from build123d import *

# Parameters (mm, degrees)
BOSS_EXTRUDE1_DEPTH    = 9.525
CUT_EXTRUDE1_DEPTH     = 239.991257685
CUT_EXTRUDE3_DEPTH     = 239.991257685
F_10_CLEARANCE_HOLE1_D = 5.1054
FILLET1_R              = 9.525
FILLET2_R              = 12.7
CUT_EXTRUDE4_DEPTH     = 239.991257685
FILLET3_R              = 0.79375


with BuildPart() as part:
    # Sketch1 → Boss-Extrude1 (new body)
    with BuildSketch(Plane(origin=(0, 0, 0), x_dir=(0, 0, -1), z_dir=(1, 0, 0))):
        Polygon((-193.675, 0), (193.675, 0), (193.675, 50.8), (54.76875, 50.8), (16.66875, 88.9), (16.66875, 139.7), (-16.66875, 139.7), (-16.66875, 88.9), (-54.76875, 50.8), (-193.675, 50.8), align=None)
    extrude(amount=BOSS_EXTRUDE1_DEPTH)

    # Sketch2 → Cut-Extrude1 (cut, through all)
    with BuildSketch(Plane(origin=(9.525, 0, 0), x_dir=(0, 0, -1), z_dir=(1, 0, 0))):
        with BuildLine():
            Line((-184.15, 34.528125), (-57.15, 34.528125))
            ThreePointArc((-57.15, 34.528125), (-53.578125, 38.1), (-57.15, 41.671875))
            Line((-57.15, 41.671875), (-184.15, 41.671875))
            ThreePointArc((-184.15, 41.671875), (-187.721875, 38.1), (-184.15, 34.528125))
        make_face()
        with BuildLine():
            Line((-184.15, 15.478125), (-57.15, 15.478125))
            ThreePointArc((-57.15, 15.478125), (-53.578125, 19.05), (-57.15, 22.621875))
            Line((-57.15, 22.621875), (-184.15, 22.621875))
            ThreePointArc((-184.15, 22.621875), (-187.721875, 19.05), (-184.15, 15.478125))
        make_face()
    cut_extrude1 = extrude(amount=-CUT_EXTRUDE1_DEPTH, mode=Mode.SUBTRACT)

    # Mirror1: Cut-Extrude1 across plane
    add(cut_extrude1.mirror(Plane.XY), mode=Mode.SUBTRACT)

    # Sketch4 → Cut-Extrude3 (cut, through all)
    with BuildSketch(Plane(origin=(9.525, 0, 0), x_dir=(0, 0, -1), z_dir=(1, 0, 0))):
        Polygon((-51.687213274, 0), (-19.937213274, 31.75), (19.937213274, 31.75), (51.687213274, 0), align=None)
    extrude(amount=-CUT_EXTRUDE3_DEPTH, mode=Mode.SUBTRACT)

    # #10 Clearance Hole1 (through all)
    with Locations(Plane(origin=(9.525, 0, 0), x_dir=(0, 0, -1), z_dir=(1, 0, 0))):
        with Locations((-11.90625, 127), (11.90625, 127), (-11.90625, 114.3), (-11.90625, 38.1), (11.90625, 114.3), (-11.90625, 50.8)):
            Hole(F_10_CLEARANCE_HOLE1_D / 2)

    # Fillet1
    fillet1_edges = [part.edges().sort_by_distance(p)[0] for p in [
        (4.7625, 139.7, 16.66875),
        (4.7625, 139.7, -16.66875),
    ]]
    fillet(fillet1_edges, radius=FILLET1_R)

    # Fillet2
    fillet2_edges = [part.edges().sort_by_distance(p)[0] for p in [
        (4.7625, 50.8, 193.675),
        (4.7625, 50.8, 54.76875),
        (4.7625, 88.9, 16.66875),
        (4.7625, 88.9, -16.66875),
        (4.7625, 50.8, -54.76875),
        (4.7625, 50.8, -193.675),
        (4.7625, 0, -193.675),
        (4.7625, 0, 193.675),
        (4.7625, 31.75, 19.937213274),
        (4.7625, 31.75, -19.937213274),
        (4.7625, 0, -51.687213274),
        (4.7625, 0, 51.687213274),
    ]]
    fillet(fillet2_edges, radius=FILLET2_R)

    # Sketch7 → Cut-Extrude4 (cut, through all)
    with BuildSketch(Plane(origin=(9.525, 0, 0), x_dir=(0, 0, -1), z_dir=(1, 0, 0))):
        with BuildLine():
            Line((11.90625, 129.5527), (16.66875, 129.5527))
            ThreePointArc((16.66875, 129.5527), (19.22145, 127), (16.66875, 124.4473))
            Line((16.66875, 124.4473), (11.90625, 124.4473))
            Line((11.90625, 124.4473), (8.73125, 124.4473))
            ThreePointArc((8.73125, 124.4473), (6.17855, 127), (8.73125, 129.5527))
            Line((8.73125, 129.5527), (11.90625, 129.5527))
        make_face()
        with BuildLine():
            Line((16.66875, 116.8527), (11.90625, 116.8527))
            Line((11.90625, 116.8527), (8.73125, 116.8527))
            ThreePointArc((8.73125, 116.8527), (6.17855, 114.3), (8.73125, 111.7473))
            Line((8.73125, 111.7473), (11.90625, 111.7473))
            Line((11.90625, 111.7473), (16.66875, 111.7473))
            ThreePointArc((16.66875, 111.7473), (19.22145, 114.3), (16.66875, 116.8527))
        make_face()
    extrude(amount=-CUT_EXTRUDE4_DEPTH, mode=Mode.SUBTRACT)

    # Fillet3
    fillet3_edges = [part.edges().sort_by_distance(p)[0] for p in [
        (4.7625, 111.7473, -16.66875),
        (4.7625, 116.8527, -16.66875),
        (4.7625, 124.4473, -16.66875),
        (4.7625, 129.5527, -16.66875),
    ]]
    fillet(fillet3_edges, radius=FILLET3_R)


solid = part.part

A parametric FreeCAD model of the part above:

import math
import FreeCAD as App
import Part
import Sketcher
from FreeCAD import Vector
Q = App.Units.Quantity


def edges_at(feature, points):
    """Names of the edges that pass closest to the given points."""
    edges = feature.Shape.Edges
    near = lambda p: min(range(len(edges)), key=lambda i: edges[i].distToShape(Part.Vertex(*p))[0])
    return sorted({f"Edge{near(p) + 1}" for p in points})


def add_polygon(sketch, points):
    """Adds a closed chain of lines whose ends are joined by coincident constraints."""
    first, n = sketch.GeometryCount, len(points)
    for a, b in zip(points, points[1:] + points[:1]):
        sketch.addGeometry(Part.LineSegment(App.Vector(*a, 0), App.Vector(*b, 0)), False)
    for i in range(n):
        sketch.addConstraint(Sketcher.Constraint("Coincident", first + i, 2, first + (i + 1) % n, 1))

doc = App.newDocument("Part")
params = doc.addObject("Spreadsheet::Sheet", "Params")
for row, (alias, value) in enumerate([
    ("sketch1_width", "2 in"),
    ("sketch1_height", "15.25 in"),
    ("sketch1_height2", "5.46875 in"),
    ("pad1_length", "0.375 in"),
    ("sketch2_height", "5 in"),
    ("sketch2_radius", "0.140625 in"),
    ("sketch4_diameter", "0.201 in"),
    ("hole_diameter", "0.201 in"),
    ("fillet_radius", "0.375 in"),
    ("fillet2_radius", "0.5 in"),
    ("sketch5_height", "0.3125 in"),
    ("fillet3_radius", "0.03125 in"),
], start=1):
    params.set(f"A{row}", alias)
    params.set(f"B{row}", "=" + value)
    params.setAlias(f"B{row}", alias)

body = doc.addObject("PartDesign::Body", "Body")

# Sketch on YZ plane
sketch1 = doc.addObject("Sketcher::SketchObject", "Sketch")
body.addObject(sketch1)
sketch1.AttachmentSupport = (doc.YZ_Plane, [""])
sketch1.MapMode = "FlatFace"
add_polygon(sketch1, [(0, 194), (0, -194), (51, -194), (51, -55), (89, -17), (140, -17), (140, 17), (89, 17), (51, 55), (51, 194)])  # lines 0-9
sketch1.addConstraint([
    Sketcher.Constraint("Vertical", 0),
    Sketcher.Constraint("Horizontal", 1),
    Sketcher.Constraint("Vertical", 2),
    Sketcher.Constraint("Horizontal", 4),
    Sketcher.Constraint("Vertical", 5),
    Sketcher.Constraint("Horizontal", 6),
    Sketcher.Constraint("Vertical", 8),
    Sketcher.Constraint("Horizontal", 9),
    Sketcher.Constraint("Symmetric", 0, 2, 9, 2, -1, 1),
    Sketcher.Constraint("Symmetric", 3, 2, 6, 2, -1),
    Sketcher.Constraint("Symmetric", 2, 2, 7, 2, -1),
    Sketcher.Constraint("Perpendicular", 3, 7),
    Sketcher.Constraint("Equal", 1, 4),
    Sketcher.Constraint("DistanceX", 1, 1, 1, 2, Q("2 in")),
    Sketcher.Constraint("DistanceY", 0, 2, 0, 1, Q("15.25 in")),
    Sketcher.Constraint("DistanceX", -1, 1, 3, 2, Q("3.5 in")),
    Sketcher.Constraint("DistanceY", 2, 1, 2, 2, Q("5.46875 in")),
])
sketch1.setExpression("Constraints[23]", "Params.sketch1_width")
sketch1.setExpression("Constraints[24]", "Params.sketch1_height")
sketch1.setExpression("Constraints[26]", "Params.sketch1_height2")
pad1 = doc.addObject("PartDesign::Pad", "Pad")
body.addObject(pad1)
pad1.Profile = sketch1
pad1.setExpression("Length", "Params.pad1_length")

# Sketch on YZ plane
sketch2 = doc.addObject("Sketcher::SketchObject", "Sketch001")
body.addObject(sketch2)
sketch2.AttachmentSupport = (doc.YZ_Plane, [""])
sketch2.MapMode = "FlatFace"
sketch2.AttachmentOffset = App.Placement(Vector(0, 0, 0.375 * 25.4), App.Rotation())
sketch2.addGeometry([
    Part.LineSegment(Vector(34.5, 184.2, 0), Vector(34.5, 57.1, 0)),  # 0
    Part.ArcOfCircle(Part.Circle(Vector(38.1, 57.1, 0), Vector(0, 0, 1), 3.6), math.radians(180), math.radians(360)),  # 1
    Part.LineSegment(Vector(41.7, 57.1, 0), Vector(41.7, 184.2, 0)),  # 2
    Part.ArcOfCircle(Part.Circle(Vector(38.1, 184.2, 0), Vector(0, 0, 1), 3.6), math.radians(0), math.radians(180)),  # 3
    Part.LineSegment(Vector(15.5, 184.2, 0), Vector(15.5, 57.1, 0)),  # 4
    Part.ArcOfCircle(Part.Circle(Vector(19.1, 57.1, 0), Vector(0, 0, 1), 3.6), math.radians(180), math.radians(360)),  # 5
    Part.LineSegment(Vector(22.6, 57.1, 0), Vector(22.6, 184.2, 0)),  # 6
    Part.ArcOfCircle(Part.Circle(Vector(19.1, 184.2, 0), Vector(0, 0, 1), 3.6), math.radians(0), math.radians(180)),  # 7
], False)
sketch2.addConstraint([
    Sketcher.Constraint("Tangent", 0, 2, 1, 1),
    Sketcher.Constraint("Tangent", 1, 2, 2, 1),
    Sketcher.Constraint("Tangent", 2, 2, 3, 1),
    Sketcher.Constraint("Tangent", 3, 2, 0, 1),
    Sketcher.Constraint("Tangent", 4, 2, 5, 1),
    Sketcher.Constraint("Tangent", 5, 2, 6, 1),
    Sketcher.Constraint("Tangent", 6, 2, 7, 1),
    Sketcher.Constraint("Tangent", 7, 2, 4, 1),
    Sketcher.Constraint("Vertical", 0),
    Sketcher.Constraint("Vertical", 2),
    Sketcher.Constraint("Vertical", 4),
    Sketcher.Constraint("Vertical", 6),
    Sketcher.Constraint("Equal", 3, 5),
    Sketcher.Constraint("Horizontal", 1, 3, 5, 3),
    Sketcher.Constraint("Horizontal", 3, 3, 7, 3),
    Sketcher.Constraint("DistanceY", 0, 2, 0, 1, Q("5 in")),
    Sketcher.Constraint("Radius", 1, Q("0.140625 in")),
    Sketcher.Constraint("DistanceX", -1, 1, 1, 3, Q("1.5 in")),
    Sketcher.Constraint("DistanceY", -1, 1, 1, 3, Q("2.25 in")),
    Sketcher.Constraint("DistanceX", -1, 1, 5, 3, Q("0.75 in")),
])
sketch2.setExpression("Constraints[15]", "Params.sketch2_height")
sketch2.setExpression("Constraints[16]", "Params.sketch2_radius")
pocket1 = doc.addObject("PartDesign::Pocket", "Pocket")
body.addObject(pocket1)
pocket1.Profile = sketch2
pocket1.Type = "ThroughAll"
doc.recompute()

mirrored = doc.addObject("PartDesign::Mirrored", "Mirrored")
body.addObject(mirrored)
mirrored.Originals = [pocket1]
mirrored.MirrorPlane = (doc.XY_Plane, [""])
body.Tip = mirrored

# Sketch on YZ plane
sketch3 = doc.addObject("Sketcher::SketchObject", "Sketch002")
body.addObject(sketch3)
sketch3.AttachmentSupport = (doc.YZ_Plane, [""])
sketch3.MapMode = "FlatFace"
sketch3.AttachmentOffset = App.Placement(Vector(0, 0, 0.375 * 25.4), App.Rotation())
add_polygon(sketch3, [(32, 20), (0, 52), (0, -52), (32, -20)])  # lines 0-3
sketch3.addConstraint([
    Sketcher.Constraint("Vertical", 1),
    Sketcher.Constraint("Vertical", 3),
    Sketcher.Constraint("Symmetric", 0, 2, 1, 2, -1, 1),
    Sketcher.Constraint("Perpendicular", 0, 2),
    Sketcher.Constraint("Equal", 0, 2),
    Sketcher.Constraint("DistanceX", -1, 1, 2, 2, Q("1.25 in")),
    Sketcher.Constraint("DistanceY", 1, 2, 1, 1, 103.374427),
])
pocket2 = doc.addObject("PartDesign::Pocket", "Pocket001")
body.addObject(pocket2)
pocket2.Profile = sketch3
pocket2.Type = "ThroughAll"

# Sketch on YZ plane
sketch4 = doc.addObject("Sketcher::SketchObject", "Sketch003")
body.addObject(sketch4)
sketch4.AttachmentSupport = (doc.YZ_Plane, [""])
sketch4.MapMode = "FlatFace"
sketch4.AttachmentOffset = App.Placement(Vector(0, 0, 0.375 * 25.4), App.Rotation())
sketch4.addGeometry([
    Part.Circle(Vector(127, 11.9, 0), Vector(0, 0, 1), 2.6),  # 0
    Part.Circle(Vector(127, -11.9, 0), Vector(0, 0, 1), 2.6),  # 1
    Part.Circle(Vector(114.3, 11.9, 0), Vector(0, 0, 1), 2.6),  # 2
    Part.Circle(Vector(38.1, 11.9, 0), Vector(0, 0, 1), 2.6),  # 3
    Part.Circle(Vector(114.3, -11.9, 0), Vector(0, 0, 1), 2.6),  # 4
    Part.Circle(Vector(50.8, 11.9, 0), Vector(0, 0, 1), 2.6),  # 5
], False)
sketch4.addConstraint([
    Sketcher.Constraint("Equal", 0, 1),
    Sketcher.Constraint("Equal", 1, 2),
    Sketcher.Constraint("Equal", 2, 3),
    Sketcher.Constraint("Equal", 3, 4),
    Sketcher.Constraint("Equal", 4, 5),
    Sketcher.Constraint("Symmetric", 0, 3, 1, 3, -1),
    Sketcher.Constraint("Symmetric", 2, 3, 4, 3, -1),
    Sketcher.Constraint("Horizontal", 0, 3, 2, 3),
    Sketcher.Constraint("Horizontal", 2, 3, 3, 3),
    Sketcher.Constraint("Horizontal", 3, 3, 5, 3),
    Sketcher.Constraint("Diameter", 0, Q("0.201 in")),
    Sketcher.Constraint("DistanceX", -1, 1, 0, 3, Q("5 in")),
    Sketcher.Constraint("DistanceX", -1, 1, 5, 3, Q("2 in")),
    Sketcher.Constraint("DistanceX", 3, 3, 2, 3, Q("3 in")),
    Sketcher.Constraint("DistanceX", -1, 1, 2, 3, Q("4.5 in")),
    Sketcher.Constraint("DistanceY", -1, 1, 0, 3, Q("0.46875 in")),
])
sketch4.setExpression("Constraints[10]", "Params.sketch4_diameter")
doc.recompute()
hole = doc.addObject("PartDesign::Hole", "Hole")
body.addObject(hole)
hole.Profile = sketch4
hole.ThreadType = "None"
hole.setExpression("Diameter", "Params.hole_diameter")
hole.DepthType = "ThroughAll"
doc.recompute()

fillet = doc.addObject("PartDesign::Fillet", "Fillet")
body.addObject(fillet)
fillet.Base = (hole, edges_at(hole, [(4.763, 139.7, 16.669), (4.763, 139.7, -16.669)]))
fillet.setExpression("Radius", "Params.fillet_radius")
doc.recompute()

fillet2 = doc.addObject("PartDesign::Fillet", "Fillet001")
body.addObject(fillet2)
fillet2.Base = (fillet, edges_at(fillet, [
    (4.763, 50.8, 193.675),
    (4.763, 50.8, 54.769),
    (4.763, 88.9, 16.669),
    (4.763, 88.9, -16.669),
    (4.763, 50.8, -54.769),
    (4.763, 50.8, -193.675),
    (4.763, 0, -193.675),
    (4.763, 0, 193.675),
    (4.763, 31.75, 19.937),
    (4.763, 31.75, -19.937),
    (4.763, 0, -51.687),
    (4.763, 0, 51.687),
]))
fillet2.setExpression("Radius", "Params.fillet2_radius")

# Sketch on YZ plane
sketch5 = doc.addObject("Sketcher::SketchObject", "Sketch004")
body.addObject(sketch5)
sketch5.AttachmentSupport = (doc.YZ_Plane, [""])
sketch5.MapMode = "FlatFace"
sketch5.AttachmentOffset = App.Placement(Vector(0, 0, 0.375 * 25.4), App.Rotation())
sketch5.addGeometry([
    Part.ArcOfCircle(Part.Circle(Vector(127, -16.7, 0), Vector(0, 0, 1), 2.6), math.radians(180), math.radians(360)),  # 0
    Part.LineSegment(Vector(129.6, -16.7, 0), Vector(129.6, -8.7, 0)),  # 1
    Part.ArcOfCircle(Part.Circle(Vector(127, -8.7, 0), Vector(0, 0, 1), 2.6), math.radians(0), math.radians(180)),  # 2
    Part.LineSegment(Vector(124.4, -8.7, 0), Vector(124.4, -16.7, 0)),  # 3
    Part.LineSegment(Vector(116.9, -16.7, 0), Vector(116.9, -8.7, 0)),  # 4
    Part.ArcOfCircle(Part.Circle(Vector(114.3, -8.7, 0), Vector(0, 0, 1), 2.6), math.radians(0), math.radians(180)),  # 5
    Part.LineSegment(Vector(111.7, -8.7, 0), Vector(111.7, -16.7, 0)),  # 6
    Part.ArcOfCircle(Part.Circle(Vector(114.3, -16.7, 0), Vector(0, 0, 1), 2.6), math.radians(180), math.radians(360)),  # 7
], False)
sketch5.addConstraint([
    Sketcher.Constraint("Tangent", 0, 2, 1, 1),
    Sketcher.Constraint("Tangent", 1, 2, 2, 1),
    Sketcher.Constraint("Tangent", 2, 2, 3, 1),
    Sketcher.Constraint("Tangent", 3, 2, 0, 1),
    Sketcher.Constraint("Tangent", 4, 2, 5, 1),
    Sketcher.Constraint("Tangent", 5, 2, 6, 1),
    Sketcher.Constraint("Tangent", 6, 2, 7, 1),
    Sketcher.Constraint("Tangent", 7, 2, 4, 1),
    Sketcher.Constraint("Vertical", 1),
    Sketcher.Constraint("Vertical", 3),
    Sketcher.Constraint("Vertical", 4),
    Sketcher.Constraint("Vertical", 6),
    Sketcher.Constraint("Equal", 2, 5),
    Sketcher.Constraint("Horizontal", 2, 3, 5, 3),
    Sketcher.Constraint("Horizontal", 0, 3, 7, 3),
    Sketcher.Constraint("DistanceX", -1, 1, 0, 3, Q("5 in")),
    Sketcher.Constraint("DistanceX", -1, 1, 5, 3, Q("4.5 in")),
    Sketcher.Constraint("Radius", 0, Q("0.1005 in")),
    Sketcher.Constraint("DistanceY", 1, 1, 1, 2, Q("0.3125 in")),
    Sketcher.Constraint("DistanceY", 0, 3, -1, 1, Q("0.65625 in")),
])
sketch5.setExpression("Constraints[18]", "Params.sketch5_height")
pocket3 = doc.addObject("PartDesign::Pocket", "Pocket002")
body.addObject(pocket3)
pocket3.Profile = sketch5
pocket3.Type = "ThroughAll"
doc.recompute()

fillet3 = doc.addObject("PartDesign::Fillet", "Fillet002")
body.addObject(fillet3)
fillet3.Base = (pocket3, edges_at(pocket3, [
    (4.763, 111.747, -16.669),
    (4.763, 116.853, -16.669),
    (4.763, 124.447, -16.669),
    (4.763, 129.553, -16.669),
]))
fillet3.setExpression("Radius", "Params.fillet3_radius")

doc.recompute()
